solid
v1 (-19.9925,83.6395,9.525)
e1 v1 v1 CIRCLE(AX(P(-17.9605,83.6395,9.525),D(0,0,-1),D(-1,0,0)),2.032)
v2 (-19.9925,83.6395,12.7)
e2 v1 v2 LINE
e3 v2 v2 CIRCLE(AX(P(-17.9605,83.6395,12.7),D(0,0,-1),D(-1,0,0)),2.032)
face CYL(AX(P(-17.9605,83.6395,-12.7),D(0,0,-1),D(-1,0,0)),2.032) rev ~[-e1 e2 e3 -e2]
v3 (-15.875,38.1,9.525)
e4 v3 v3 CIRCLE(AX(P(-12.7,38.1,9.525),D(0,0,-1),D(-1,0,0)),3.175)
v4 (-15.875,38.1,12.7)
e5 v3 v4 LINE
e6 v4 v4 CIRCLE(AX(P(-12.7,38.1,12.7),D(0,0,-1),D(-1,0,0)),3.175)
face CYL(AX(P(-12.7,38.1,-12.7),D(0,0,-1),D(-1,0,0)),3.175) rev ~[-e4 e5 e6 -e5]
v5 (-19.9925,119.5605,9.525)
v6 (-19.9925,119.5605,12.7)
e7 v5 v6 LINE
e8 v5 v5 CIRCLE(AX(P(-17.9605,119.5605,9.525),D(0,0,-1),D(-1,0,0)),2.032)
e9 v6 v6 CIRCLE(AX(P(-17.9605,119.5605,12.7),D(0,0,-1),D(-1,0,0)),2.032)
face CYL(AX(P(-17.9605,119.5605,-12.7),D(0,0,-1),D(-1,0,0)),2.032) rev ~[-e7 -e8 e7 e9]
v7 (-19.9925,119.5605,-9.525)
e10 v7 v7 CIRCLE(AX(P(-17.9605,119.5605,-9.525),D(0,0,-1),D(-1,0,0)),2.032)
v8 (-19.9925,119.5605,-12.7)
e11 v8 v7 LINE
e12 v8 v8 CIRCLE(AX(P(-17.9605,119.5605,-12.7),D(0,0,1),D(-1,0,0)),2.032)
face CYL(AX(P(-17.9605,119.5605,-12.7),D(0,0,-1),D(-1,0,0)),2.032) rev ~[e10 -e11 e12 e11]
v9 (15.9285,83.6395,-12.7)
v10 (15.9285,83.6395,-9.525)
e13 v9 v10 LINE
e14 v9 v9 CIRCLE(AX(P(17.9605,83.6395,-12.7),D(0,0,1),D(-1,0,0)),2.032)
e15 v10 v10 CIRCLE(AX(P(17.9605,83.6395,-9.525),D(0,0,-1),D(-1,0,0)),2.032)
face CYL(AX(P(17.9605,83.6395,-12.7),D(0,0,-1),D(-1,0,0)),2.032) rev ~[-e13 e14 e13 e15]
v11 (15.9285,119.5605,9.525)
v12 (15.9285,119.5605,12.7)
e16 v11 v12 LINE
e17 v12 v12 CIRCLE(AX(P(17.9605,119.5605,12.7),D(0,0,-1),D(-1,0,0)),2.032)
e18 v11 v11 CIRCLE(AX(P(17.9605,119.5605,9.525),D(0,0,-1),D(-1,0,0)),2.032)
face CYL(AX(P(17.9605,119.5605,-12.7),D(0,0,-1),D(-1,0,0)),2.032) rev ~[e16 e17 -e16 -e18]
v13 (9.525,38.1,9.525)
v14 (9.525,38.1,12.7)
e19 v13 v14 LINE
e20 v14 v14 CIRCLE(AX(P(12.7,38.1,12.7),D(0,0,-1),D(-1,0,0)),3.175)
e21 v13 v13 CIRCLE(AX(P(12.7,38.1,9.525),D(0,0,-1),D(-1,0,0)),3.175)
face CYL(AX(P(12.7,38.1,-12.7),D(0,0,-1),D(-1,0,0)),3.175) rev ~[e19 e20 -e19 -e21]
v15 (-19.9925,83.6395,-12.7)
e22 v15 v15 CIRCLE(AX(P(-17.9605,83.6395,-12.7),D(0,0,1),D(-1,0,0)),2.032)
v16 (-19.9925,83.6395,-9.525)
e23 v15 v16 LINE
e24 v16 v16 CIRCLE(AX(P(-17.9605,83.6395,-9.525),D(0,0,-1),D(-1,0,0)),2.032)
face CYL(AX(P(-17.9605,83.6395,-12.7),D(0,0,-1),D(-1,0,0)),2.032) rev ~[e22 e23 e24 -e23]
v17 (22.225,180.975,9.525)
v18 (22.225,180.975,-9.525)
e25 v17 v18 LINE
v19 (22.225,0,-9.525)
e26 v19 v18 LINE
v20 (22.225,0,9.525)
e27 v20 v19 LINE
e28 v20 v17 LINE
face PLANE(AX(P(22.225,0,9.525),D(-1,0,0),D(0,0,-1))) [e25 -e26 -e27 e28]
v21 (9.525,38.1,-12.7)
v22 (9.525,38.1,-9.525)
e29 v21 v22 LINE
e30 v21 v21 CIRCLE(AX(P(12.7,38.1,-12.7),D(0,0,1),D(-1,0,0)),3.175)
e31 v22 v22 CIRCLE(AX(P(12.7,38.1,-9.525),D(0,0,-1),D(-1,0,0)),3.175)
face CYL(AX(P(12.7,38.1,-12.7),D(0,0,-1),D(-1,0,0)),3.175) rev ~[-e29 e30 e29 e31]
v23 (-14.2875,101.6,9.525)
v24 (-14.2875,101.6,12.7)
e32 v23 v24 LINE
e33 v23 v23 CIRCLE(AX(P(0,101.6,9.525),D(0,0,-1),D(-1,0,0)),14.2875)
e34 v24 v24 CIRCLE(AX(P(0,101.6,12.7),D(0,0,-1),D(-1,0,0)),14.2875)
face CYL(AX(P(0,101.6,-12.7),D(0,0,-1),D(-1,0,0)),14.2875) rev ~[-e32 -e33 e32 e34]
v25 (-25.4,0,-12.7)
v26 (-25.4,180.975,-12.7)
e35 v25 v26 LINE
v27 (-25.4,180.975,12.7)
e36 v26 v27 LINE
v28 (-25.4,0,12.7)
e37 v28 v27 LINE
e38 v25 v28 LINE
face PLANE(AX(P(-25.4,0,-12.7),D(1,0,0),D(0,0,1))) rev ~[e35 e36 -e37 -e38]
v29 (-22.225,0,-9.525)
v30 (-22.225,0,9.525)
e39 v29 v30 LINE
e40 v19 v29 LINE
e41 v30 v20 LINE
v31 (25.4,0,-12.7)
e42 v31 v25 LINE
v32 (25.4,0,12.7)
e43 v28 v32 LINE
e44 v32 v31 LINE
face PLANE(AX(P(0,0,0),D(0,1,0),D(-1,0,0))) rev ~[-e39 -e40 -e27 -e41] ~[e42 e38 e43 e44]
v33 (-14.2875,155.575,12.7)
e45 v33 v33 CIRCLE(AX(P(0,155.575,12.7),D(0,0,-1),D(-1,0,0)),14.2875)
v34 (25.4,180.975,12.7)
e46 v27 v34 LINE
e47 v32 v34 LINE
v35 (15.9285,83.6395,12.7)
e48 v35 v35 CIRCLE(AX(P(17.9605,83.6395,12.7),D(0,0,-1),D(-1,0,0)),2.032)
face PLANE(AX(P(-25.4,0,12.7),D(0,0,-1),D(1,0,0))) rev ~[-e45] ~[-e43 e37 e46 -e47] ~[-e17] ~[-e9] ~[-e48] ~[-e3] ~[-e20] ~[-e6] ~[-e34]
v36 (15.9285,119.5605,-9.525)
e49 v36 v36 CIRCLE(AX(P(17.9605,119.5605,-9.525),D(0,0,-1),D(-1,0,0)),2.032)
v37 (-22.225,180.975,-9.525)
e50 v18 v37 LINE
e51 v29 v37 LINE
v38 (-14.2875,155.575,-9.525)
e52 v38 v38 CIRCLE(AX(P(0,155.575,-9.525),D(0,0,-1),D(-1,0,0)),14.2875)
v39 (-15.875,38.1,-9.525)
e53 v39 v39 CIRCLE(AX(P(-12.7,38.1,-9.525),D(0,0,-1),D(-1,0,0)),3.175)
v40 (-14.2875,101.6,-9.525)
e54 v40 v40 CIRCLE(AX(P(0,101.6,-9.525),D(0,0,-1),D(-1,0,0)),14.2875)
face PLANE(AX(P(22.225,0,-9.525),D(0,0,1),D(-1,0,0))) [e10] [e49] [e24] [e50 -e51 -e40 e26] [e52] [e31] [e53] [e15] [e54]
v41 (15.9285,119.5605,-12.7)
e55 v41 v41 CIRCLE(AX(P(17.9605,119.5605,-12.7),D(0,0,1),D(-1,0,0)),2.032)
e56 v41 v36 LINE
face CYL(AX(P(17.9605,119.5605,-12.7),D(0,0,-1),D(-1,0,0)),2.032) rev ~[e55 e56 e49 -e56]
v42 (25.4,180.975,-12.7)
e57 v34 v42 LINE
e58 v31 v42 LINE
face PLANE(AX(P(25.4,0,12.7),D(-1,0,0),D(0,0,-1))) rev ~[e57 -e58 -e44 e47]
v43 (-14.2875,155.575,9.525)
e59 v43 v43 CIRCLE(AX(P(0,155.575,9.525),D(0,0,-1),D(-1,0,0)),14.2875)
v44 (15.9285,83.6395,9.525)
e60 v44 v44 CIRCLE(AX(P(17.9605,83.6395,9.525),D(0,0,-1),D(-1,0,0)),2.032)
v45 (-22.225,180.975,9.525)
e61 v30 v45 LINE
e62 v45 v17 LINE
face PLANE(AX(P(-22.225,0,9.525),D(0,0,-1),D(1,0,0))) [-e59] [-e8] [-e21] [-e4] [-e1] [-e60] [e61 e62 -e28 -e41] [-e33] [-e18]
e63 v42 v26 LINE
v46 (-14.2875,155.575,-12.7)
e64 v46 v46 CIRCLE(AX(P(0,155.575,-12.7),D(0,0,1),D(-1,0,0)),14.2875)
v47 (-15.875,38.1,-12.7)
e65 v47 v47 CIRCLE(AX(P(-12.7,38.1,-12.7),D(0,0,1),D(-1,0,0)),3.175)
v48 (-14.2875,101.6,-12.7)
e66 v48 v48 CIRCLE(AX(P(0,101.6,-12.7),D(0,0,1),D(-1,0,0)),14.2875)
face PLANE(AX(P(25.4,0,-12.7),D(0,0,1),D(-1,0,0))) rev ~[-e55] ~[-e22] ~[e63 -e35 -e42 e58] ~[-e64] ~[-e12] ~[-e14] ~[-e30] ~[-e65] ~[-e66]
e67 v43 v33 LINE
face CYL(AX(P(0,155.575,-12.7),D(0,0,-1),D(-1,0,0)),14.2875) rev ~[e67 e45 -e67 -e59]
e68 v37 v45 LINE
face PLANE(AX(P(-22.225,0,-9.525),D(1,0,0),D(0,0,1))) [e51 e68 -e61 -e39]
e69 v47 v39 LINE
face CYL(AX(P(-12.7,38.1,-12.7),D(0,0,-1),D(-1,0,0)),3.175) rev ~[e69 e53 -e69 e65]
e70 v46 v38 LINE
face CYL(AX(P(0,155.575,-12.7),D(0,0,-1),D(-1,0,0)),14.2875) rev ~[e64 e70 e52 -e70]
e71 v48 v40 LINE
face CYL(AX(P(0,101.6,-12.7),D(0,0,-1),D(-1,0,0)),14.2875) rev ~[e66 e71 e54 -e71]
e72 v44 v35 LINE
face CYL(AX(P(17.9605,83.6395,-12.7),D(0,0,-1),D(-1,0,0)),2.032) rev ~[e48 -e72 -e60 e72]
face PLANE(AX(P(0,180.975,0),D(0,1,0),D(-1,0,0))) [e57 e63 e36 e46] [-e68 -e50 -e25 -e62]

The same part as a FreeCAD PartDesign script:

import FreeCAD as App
import Part
import Sketcher
from FreeCAD import Vector
Q = App.Units.Quantity


def add_polygon(sketch, points):
    """Adds a closed chain of lines whose ends are joined by coincident constraints."""
    first, n = sketch.GeometryCount, len(points)
    for a, b in zip(points, points[1:] + points[:1]):
        sketch.addGeometry(Part.LineSegment(App.Vector(*a, 0), App.Vector(*b, 0)), False)
    for i in range(n):
        sketch.addConstraint(Sketcher.Constraint("Coincident", first + i, 2, first + (i + 1) % n, 1))

doc = App.newDocument("Part")
body = doc.addObject("PartDesign::Body", "Body")

# Sketch on XZ plane
sketch1 = body.newObject("Sketcher::SketchObject", "Sketch")
sketch1.AttachmentSupport = (doc.getObject("XZ_Plane"), [""])
sketch1.MapMode = "FlatFace"
add_polygon(sketch1, [(-25, -13), (-25, 13), (25, 13), (25, -13)])  # lines 0-3
add_polygon(sketch1, [(22, 10), (-22, 10), (-22, -10), (22, -10)])  # lines 4-7
sketch1.addConstraint([
    Sketcher.Constraint("Vertical", 0),
    Sketcher.Constraint("Horizontal", 1),
    Sketcher.Constraint("Vertical", 2),
    Sketcher.Constraint("Horizontal", 3),
    Sketcher.Constraint("Horizontal", 4),
    Sketcher.Constraint("Vertical", 5),
    Sketcher.Constraint("Horizontal", 6),
    Sketcher.Constraint("Vertical", 7),
    Sketcher.Constraint("Symmetric", 0, 2, 2, 2, -1, 1),
    Sketcher.Constraint("Symmetric", 4, 2, 6, 2, -1, 1),
    Sketcher.Constraint("DistanceX", 1, 1, 1, 2, Q("2 in")),
    Sketcher.Constraint("DistanceY", 0, 1, 0, 2, Q("1 in")),
    Sketcher.Constraint("DistanceX", 4, 2, 4, 1, Q("1.75 in")),
    Sketcher.Constraint("DistanceY", 5, 2, 5, 1, Q("0.75 in")),
])
pad1 = body.newObject("PartDesign::Pad", "Pad")
pad1.Profile = sketch1
pad1.Length = Q("7.125 in")
pad1.Reversed = True

# Sketch on XY plane
sketch2 = body.newObject("Sketcher::SketchObject", "Sketch001")
sketch2.AttachmentSupport = (doc.getObject("XY_Plane"), [""])
sketch2.MapMode = "FlatFace"
sketch2.AttachmentOffset = App.Placement(Vector(0, 0, -0.5 * 25.4), App.Rotation())
sketch2.addGeometry([
    Part.Circle(Vector(0, 155.6, 0), Vector(0, 0, 1), 14.3),
    Part.Circle(Vector(-12.7, 38.1, 0), Vector(0, 0, 1), 3.2),
    Part.Circle(Vector(12.7, 38.1, 0), Vector(0, 0, 1), 3.2),
], False)
sketch2.addConstraint([
    Sketcher.Constraint("Equal", 1, 2),
    Sketcher.Constraint("Symmetric", 1, 3, 2, 3, -2),
    Sketcher.Constraint("PointOnObject", 0, 3, -2),
    Sketcher.Constraint("Diameter", 1, Q("0.25 in")),
    Sketcher.Constraint("Diameter", 0, Q("1.125 in")),
    Sketcher.Constraint("DistanceX", 1, 3, 2, 3, Q("1 in")),
    Sketcher.Constraint("DistanceY", -1, 1, 1, 3, Q("1.5 in")),
    Sketcher.Constraint("DistanceY", -1, 1, 0, 3, Q("6.125 in")),
])
pocket1 = body.newObject("PartDesign::Pocket", "Pocket")
pocket1.Profile = sketch2
pocket1.Length = Q("7.125 in")
pocket1.Reversed = True

# Sketch on XY plane
sketch3 = body.newObject("Sketcher::SketchObject", "Sketch002")
sketch3.AttachmentSupport = (doc.getObject("XY_Plane"), [""])
sketch3.MapMode = "FlatFace"
sketch3.AttachmentOffset = App.Placement(Vector(0, 0, -0.5 * 25.4), App.Rotation())
sketch3.addGeometry([
    Part.Circle(Vector(0, 101.6, 0), Vector(0, 0, 1), 14.3),  # 0
    Part.Circle(Vector(18, 83.6, 0), Vector(0, 0, 1), 2),  # 1
    Part.Circle(Vector(-18, 83.6, 0), Vector(0, 0, 1), 2),  # 2
    Part.Circle(Vector(18, 119.6, 0), Vector(0, 0, 1), 2),  # 3
    Part.Circle(Vector(-18, 119.6, 0), Vector(0, 0, 1), 2),  # 4
], False)
sketch3.addConstraint([
    Sketcher.Constraint("Equal", 1, 2),
    Sketcher.Constraint("Equal", 2, 3),
    Sketcher.Constraint("Equal", 3, 4),
    Sketcher.Constraint("Symmetric", 1, 3, 2, 3, -2),
    Sketcher.Constraint("Symmetric", 3, 3, 4, 3, -2),
    Sketcher.Constraint("PointOnObject", 0, 3, -2),
    Sketcher.Constraint("Vertical", 1, 3, 3, 3),
    Sketcher.Constraint("Diameter", 1, Q("0.16 in")),
    Sketcher.Constraint("Diameter", 0, Q("1.125 in")),
    Sketcher.Constraint("DistanceY", -1, 1, 0, 3, Q("4 in")),
    Sketcher.Constraint("DistanceX", -1, 1, 1, 3, Q("0.7071 in")),
    Sketcher.Constraint("DistanceY", -1, 1, 1, 3, Q("3.2929 in")),
    Sketcher.Constraint("DistanceY", -1, 1, 3, 3, Q("4.7071 in")),
])
pocket2 = body.newObject("PartDesign::Pocket", "Pocket001")
pocket2.Profile = sketch3
pocket2.Length = Q("7.125 in")
pocket2.Reversed = True

doc.recompute()
